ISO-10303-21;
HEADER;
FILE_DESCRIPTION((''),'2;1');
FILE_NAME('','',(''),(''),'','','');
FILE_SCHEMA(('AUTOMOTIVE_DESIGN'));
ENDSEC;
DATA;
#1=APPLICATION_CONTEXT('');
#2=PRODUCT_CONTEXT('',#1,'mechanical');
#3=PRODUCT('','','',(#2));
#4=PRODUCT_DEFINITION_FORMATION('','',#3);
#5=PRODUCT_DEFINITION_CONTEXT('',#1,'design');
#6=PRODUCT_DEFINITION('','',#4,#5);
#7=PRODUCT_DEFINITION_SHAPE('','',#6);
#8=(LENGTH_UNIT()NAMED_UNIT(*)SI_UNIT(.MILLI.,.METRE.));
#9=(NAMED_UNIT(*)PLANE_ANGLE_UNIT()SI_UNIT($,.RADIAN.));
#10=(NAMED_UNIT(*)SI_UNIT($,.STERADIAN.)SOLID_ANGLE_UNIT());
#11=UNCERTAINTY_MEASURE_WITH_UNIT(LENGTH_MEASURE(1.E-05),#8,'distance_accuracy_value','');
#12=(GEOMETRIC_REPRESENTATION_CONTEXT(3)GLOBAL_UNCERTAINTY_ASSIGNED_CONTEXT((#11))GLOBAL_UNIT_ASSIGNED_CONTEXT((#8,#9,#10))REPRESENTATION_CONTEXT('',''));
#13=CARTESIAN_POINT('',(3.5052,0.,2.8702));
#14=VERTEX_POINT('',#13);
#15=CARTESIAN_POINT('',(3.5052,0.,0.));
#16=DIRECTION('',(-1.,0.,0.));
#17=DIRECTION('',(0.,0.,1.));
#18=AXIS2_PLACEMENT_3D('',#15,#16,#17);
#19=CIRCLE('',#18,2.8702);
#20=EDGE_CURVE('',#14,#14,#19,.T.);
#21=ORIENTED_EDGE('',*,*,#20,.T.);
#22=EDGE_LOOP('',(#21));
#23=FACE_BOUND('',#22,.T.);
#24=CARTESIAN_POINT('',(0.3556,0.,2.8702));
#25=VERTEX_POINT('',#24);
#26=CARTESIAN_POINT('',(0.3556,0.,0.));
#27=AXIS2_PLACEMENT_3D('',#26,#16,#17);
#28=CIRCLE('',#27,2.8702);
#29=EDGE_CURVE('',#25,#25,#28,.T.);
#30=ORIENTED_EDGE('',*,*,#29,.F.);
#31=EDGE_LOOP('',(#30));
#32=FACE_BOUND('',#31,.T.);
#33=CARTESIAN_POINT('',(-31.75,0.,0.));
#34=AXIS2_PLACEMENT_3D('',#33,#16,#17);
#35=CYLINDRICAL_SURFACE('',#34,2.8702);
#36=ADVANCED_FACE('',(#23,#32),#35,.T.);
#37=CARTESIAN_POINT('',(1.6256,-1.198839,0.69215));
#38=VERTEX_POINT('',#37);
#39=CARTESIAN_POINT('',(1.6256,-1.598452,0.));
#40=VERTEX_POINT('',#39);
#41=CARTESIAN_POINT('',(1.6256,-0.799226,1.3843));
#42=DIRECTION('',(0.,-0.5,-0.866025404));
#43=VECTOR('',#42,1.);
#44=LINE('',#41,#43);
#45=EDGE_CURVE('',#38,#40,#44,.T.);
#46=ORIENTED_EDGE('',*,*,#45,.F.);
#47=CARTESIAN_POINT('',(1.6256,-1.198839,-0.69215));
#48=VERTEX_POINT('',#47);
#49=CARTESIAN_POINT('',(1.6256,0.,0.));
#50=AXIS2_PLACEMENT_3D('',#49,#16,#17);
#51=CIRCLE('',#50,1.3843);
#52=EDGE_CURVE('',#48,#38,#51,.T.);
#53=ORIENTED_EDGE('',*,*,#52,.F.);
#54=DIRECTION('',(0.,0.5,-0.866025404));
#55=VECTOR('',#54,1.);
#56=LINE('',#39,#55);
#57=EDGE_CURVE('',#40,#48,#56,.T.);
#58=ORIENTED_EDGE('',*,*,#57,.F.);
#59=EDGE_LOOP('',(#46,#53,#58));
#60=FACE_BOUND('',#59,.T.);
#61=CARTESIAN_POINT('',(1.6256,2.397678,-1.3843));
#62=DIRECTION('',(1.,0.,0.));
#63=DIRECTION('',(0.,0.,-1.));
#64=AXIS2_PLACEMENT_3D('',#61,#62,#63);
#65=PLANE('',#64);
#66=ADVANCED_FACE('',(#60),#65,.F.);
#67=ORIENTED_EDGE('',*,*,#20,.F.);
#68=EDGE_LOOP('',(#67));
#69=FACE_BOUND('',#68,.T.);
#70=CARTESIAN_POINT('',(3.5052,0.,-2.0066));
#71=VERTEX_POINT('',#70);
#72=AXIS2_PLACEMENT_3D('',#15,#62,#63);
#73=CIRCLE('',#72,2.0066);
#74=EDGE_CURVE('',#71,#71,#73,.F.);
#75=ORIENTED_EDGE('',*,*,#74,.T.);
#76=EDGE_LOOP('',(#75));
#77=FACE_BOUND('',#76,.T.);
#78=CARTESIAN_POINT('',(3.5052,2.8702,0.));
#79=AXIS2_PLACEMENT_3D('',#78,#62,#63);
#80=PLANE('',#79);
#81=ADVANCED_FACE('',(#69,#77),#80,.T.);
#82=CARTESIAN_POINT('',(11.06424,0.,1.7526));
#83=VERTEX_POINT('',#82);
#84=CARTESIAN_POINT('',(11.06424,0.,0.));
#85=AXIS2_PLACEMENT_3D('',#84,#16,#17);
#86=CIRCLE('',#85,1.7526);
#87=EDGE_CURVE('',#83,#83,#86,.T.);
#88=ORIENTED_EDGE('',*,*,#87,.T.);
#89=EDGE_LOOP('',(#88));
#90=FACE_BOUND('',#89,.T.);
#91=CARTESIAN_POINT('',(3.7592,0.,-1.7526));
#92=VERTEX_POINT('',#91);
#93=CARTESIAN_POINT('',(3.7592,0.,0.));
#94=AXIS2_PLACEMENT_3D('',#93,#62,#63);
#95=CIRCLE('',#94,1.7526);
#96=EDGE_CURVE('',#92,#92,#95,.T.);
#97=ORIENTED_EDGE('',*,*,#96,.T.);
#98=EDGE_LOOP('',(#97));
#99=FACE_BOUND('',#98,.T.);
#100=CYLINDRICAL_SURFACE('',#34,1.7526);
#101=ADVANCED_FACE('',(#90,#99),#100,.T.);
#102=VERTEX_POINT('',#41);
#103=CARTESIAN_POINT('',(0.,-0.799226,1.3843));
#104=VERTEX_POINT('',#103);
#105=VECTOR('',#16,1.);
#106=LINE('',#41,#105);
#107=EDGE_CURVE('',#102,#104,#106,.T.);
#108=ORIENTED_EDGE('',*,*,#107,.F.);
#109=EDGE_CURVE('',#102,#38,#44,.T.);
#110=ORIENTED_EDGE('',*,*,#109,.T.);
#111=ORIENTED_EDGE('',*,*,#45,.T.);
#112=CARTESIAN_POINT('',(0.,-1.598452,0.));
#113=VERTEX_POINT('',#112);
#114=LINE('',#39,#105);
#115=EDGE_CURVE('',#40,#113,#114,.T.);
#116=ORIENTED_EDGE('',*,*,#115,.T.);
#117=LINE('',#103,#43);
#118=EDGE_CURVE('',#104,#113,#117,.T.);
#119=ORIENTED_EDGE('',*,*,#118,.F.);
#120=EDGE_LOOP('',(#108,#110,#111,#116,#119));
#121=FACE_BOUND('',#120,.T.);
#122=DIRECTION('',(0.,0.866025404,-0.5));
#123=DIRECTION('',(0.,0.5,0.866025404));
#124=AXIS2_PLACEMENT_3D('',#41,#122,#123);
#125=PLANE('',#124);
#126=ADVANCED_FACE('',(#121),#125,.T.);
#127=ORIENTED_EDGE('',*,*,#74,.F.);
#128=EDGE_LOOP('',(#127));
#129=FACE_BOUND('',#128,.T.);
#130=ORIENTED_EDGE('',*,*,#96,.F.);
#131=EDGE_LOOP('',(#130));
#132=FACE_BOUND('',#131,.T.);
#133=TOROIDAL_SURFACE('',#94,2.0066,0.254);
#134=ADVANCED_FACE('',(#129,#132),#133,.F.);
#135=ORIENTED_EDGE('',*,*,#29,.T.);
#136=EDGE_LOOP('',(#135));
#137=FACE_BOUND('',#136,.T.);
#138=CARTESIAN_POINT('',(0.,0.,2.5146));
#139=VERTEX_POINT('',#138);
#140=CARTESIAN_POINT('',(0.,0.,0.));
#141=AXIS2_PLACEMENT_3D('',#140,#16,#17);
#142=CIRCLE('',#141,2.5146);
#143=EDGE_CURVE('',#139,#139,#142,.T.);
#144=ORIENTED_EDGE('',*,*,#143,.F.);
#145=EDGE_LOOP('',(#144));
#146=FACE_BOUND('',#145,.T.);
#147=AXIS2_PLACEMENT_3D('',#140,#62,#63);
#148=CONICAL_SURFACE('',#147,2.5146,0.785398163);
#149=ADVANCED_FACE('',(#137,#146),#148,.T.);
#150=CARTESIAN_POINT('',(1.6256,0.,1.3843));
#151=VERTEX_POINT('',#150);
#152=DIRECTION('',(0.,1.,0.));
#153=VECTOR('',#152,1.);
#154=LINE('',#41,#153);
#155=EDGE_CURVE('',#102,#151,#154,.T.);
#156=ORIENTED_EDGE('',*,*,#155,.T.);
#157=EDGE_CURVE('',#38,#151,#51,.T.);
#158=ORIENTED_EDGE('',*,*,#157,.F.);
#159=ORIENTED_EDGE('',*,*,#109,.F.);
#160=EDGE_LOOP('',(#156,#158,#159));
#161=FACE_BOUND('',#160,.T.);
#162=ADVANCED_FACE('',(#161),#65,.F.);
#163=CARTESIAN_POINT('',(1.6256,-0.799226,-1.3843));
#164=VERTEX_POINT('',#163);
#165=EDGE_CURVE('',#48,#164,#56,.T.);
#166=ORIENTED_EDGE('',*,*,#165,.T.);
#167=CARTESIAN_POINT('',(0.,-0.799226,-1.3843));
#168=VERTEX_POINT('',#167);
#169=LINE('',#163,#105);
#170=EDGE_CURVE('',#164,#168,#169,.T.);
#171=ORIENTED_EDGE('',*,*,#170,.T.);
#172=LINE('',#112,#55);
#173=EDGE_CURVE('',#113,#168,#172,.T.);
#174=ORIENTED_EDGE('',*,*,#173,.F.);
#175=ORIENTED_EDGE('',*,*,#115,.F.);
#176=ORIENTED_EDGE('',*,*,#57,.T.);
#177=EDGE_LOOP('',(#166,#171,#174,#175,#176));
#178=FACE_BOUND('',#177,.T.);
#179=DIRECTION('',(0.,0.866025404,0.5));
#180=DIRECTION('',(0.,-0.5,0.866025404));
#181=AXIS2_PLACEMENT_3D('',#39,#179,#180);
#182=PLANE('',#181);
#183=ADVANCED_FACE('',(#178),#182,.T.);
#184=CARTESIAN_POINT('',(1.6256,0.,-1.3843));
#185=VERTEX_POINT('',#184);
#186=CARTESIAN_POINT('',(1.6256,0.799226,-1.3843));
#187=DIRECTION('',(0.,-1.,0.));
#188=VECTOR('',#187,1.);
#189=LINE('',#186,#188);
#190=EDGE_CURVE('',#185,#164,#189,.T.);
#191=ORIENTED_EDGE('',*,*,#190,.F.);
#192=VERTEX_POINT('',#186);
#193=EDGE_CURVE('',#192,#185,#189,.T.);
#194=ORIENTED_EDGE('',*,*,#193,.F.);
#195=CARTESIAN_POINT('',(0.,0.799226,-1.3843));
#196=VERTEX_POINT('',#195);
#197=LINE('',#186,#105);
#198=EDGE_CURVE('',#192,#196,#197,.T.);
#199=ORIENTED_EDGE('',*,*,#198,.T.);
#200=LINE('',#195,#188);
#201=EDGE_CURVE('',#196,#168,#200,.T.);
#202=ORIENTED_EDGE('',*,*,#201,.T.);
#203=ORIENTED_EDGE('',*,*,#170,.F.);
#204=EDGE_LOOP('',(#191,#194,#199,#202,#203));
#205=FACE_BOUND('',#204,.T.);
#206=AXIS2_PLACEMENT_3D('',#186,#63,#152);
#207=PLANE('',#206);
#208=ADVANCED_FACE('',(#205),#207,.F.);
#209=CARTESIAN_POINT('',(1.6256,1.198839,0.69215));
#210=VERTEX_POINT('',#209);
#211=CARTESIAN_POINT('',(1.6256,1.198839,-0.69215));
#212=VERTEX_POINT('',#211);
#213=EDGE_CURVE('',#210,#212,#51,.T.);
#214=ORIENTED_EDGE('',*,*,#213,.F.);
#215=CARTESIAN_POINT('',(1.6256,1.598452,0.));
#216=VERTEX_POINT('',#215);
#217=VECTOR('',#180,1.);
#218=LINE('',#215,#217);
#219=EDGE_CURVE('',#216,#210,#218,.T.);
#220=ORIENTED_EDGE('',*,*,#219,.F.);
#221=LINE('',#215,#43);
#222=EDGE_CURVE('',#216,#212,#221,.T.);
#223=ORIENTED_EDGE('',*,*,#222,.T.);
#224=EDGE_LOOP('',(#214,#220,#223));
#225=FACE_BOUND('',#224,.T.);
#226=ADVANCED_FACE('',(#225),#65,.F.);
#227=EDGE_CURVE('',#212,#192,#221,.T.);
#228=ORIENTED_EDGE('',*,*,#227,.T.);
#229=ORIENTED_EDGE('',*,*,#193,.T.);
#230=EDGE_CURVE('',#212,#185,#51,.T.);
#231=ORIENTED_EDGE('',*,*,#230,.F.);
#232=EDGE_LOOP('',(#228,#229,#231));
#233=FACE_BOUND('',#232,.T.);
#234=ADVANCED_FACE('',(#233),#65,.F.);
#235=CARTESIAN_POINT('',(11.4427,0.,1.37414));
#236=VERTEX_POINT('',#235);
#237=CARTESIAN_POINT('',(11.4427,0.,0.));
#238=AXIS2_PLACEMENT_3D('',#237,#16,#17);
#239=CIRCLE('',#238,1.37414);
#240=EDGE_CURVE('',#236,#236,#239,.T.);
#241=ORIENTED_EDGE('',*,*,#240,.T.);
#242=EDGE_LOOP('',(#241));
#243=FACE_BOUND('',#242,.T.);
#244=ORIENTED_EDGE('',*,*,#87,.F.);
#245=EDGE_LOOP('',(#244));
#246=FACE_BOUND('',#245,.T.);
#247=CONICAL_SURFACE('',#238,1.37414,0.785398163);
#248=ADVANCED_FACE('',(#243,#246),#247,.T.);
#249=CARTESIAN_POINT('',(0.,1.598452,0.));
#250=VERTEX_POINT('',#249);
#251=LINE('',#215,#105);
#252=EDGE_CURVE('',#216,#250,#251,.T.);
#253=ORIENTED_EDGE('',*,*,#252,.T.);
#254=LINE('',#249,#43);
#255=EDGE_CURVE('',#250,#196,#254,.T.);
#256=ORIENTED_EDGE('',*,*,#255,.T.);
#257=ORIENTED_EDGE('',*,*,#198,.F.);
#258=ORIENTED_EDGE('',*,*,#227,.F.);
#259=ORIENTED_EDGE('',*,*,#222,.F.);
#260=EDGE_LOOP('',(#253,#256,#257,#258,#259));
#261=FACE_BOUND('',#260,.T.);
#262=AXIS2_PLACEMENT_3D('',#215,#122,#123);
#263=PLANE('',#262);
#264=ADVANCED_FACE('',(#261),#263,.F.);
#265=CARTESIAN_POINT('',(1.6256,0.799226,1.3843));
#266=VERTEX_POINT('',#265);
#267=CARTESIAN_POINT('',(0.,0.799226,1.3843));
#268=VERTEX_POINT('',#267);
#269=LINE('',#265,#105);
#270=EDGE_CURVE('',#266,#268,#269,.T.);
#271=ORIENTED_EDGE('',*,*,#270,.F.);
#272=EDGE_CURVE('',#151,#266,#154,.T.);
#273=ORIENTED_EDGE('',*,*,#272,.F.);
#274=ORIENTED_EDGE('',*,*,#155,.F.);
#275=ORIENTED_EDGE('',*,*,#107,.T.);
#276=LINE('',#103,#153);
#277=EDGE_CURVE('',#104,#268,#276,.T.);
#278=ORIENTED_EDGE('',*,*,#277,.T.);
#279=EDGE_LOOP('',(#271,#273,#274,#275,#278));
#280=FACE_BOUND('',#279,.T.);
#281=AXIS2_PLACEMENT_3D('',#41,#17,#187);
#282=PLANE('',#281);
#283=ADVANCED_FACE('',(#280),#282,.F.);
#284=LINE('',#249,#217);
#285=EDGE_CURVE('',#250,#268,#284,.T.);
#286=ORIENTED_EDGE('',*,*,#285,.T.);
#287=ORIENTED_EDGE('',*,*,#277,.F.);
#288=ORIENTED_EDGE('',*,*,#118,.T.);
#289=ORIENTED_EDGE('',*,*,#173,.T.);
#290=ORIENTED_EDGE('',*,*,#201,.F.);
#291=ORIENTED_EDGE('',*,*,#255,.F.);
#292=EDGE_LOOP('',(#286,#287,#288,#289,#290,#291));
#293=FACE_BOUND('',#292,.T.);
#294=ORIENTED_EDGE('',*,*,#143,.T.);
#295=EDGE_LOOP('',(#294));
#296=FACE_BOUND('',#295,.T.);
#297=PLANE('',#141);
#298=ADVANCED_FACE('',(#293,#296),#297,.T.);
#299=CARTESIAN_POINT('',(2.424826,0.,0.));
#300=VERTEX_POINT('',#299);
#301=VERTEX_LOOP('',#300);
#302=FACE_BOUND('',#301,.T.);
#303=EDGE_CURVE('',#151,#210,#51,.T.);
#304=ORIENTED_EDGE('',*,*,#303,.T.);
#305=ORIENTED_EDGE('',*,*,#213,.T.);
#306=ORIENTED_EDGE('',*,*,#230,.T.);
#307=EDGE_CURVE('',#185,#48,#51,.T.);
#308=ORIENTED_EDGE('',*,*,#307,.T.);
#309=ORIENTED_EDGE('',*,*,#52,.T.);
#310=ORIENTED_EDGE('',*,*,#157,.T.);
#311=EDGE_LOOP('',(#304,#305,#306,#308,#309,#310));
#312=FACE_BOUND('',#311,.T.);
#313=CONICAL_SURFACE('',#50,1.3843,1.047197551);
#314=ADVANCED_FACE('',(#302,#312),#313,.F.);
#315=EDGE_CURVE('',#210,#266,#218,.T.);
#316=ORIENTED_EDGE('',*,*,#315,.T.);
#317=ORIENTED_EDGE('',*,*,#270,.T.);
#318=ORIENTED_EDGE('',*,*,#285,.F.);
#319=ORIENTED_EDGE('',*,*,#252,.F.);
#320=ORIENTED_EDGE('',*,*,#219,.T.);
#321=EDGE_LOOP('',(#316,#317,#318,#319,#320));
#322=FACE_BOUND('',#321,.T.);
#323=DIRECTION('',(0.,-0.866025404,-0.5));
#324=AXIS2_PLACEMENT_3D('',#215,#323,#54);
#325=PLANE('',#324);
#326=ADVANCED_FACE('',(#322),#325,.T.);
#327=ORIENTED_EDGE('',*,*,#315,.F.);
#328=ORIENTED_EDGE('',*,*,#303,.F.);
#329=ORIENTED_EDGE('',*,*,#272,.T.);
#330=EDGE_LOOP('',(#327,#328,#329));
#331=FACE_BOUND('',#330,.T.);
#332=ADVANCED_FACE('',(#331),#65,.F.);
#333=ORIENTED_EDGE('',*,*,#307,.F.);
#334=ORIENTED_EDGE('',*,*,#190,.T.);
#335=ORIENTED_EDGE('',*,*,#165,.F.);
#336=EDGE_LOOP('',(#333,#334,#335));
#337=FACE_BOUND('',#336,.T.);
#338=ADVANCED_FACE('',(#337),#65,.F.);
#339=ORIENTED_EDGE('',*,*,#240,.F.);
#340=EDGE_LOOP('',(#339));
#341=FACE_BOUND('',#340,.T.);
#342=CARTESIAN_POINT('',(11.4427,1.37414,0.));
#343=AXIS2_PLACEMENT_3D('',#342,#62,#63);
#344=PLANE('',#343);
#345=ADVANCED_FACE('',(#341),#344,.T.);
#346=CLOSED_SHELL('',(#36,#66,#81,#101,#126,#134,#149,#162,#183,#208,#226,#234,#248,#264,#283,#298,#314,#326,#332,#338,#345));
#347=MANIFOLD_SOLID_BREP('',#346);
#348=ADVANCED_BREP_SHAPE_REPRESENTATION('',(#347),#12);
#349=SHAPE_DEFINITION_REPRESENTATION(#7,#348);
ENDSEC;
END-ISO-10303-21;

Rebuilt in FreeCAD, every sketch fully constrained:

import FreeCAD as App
import Part
import Sketcher
from FreeCAD import Vector
Q = App.Units.Quantity


def edges_at(feature, points):
    """Names of the edges that pass closest to the given points."""
    edges = feature.Shape.Edges
    near = lambda p: min(range(len(edges)), key=lambda i: edges[i].distToShape(Part.Vertex(*p))[0])
    return sorted({f"Edge{near(p) + 1}" for p in points})


def add_polygon(sketch, points):
    """Adds a closed chain of lines whose ends are joined by coincident constraints."""
    first, n = sketch.GeometryCount, len(points)
    for a, b in zip(points, points[1:] + points[:1]):
        sketch.addGeometry(Part.LineSegment(App.Vector(*a, 0), App.Vector(*b, 0)), False)
    for i in range(n):
        sketch.addConstraint(Sketcher.Constraint("Coincident", first + i, 2, first + (i + 1) % n, 1))

doc = App.newDocument("Part")
body = doc.addObject("PartDesign::Body", "Body")

# Sketch on XY plane
sketch1 = doc.addObject("Sketcher::SketchObject", "Sketch")
body.addObject(sketch1)
sketch1.AttachmentSupport = (doc.XY_Plane, [""])
sketch1.MapMode = "FlatFace"
add_polygon(sketch1, [(0, 2.5), (0, 0), (11.4, 0), (11.4, 1.4), (11.1, 1.8), (3.5, 1.8), (3.5, 2.9), (0.4, 2.9)])  # lines 0-7
sketch1.addConstraint([
    Sketcher.Constraint("Vertical", 0),
    Sketcher.Constraint("Horizontal", 1),
    Sketcher.Constraint("Vertical", 2),
    Sketcher.Constraint("Horizontal", 4),
    Sketcher.Constraint("Vertical", 5),
    Sketcher.Constraint("Horizontal", 6),
    Sketcher.Constraint("Coincident", 0, 2, -1, 1),
    Sketcher.Constraint("Perpendicular", 3, 7),
    Sketcher.Constraint("Angle", 3, Q("135 deg")),
    Sketcher.Constraint("DistanceX", 6, 2, 6, 1, Q("0.124 in")),
    Sketcher.Constraint("DistanceY", 0, 2, 0, 1, Q("0.099 in")),
    Sketcher.Constraint("DistanceY", 5, 1, 5, 2, Q("0.044 in")),
    Sketcher.Constraint("DistanceY", 4, 2, 7, 2, Q("0.03 in")),
    Sketcher.Constraint("DistanceX", 1, 1, 1, 2, Q("0.4505 in")),
    Sketcher.Constraint("DistanceX", 4, 2, 4, 1, Q("0.2976 in")),
])
revolution = doc.addObject("PartDesign::Revolution", "Revolution")
body.addObject(revolution)
revolution.Profile = sketch1
revolution.ReferenceAxis = (sketch1, ["H_Axis"])
revolution.Angle = 360
doc.recompute()

fillet = doc.addObject("PartDesign::Fillet", "Fillet")
body.addObject(fillet)
fillet.Base = (revolution, edges_at(revolution, [(3.505, -1.753, 0)]))
fillet.Radius = Q("0.01 in")

# Sketch on XY plane
sketch2 = doc.addObject("Sketcher::SketchObject", "Sketch001")
body.addObject(sketch2)
sketch2.AttachmentSupport = (doc.XY_Plane, [""])
sketch2.MapMode = "FlatFace"
add_polygon(sketch2, [(1.6, 1.4), (0, 1.4), (0, 0), (2.4, 0)])  # lines 0-3
sketch2.addConstraint([
    Sketcher.Constraint("Horizontal", 0),
    Sketcher.Constraint("Vertical", 1),
    Sketcher.Constraint("Horizontal", 2),
    Sketcher.Constraint("Coincident", 1, 2, -1, 1),
    Sketcher.Constraint("Angle", 3, Q("120 deg")),
    Sketcher.Constraint("DistanceX", 0, 2, 0, 1, Q("0.064 in")),
    Sketcher.Constraint("DistanceY", 1, 2, 1, 1, Q("0.0545 in")),
])
groove = doc.addObject("PartDesign::Groove", "Groove")
body.addObject(groove)
groove.Profile = sketch2
groove.ReferenceAxis = (sketch2, ["H_Axis"])
groove.Angle = 360

# Sketch on YZ plane
sketch3 = doc.addObject("Sketcher::SketchObject", "Sketch002")
body.addObject(sketch3)
sketch3.AttachmentSupport = (doc.YZ_Plane, [""])
sketch3.MapMode = "FlatFace"
add_polygon(sketch3, [(1.6, 0), (0.8, -1.4), (-0.8, -1.4), (-1.6, 0), (-0.8, 1.4), (0.8, 1.4)])  # lines 0-5
sketch3.addConstraint([
    Sketcher.Constraint("Horizontal", 1),
    Sketcher.Constraint("Horizontal", 4),
    Sketcher.Constraint("Symmetric", 0, 2, 3, 2, -1, 1),
    Sketcher.Constraint("Symmetric", 2, 2, 5, 2, -1, 1),
    Sketcher.Constraint("PointOnObject", 2, 2, -1),
    Sketcher.Constraint("Parallel", 2, 5),
    Sketcher.Constraint("Vertical", 1, 2, 3, 2),
    Sketcher.Constraint("Angle", 0, Q("-120 deg")),
    Sketcher.Constraint("DistanceY", 1, 2, 3, 2, Q("0.109 in")),
    Sketcher.Constraint("DistanceX", 1, 2, 1, 1, 1.598452),
])
pocket1 = doc.addObject("PartDesign::Pocket", "Pocket")
body.addObject(pocket1)
pocket1.Profile = sketch3
pocket1.Length = Q("0.064 in")
pocket1.Reversed = True

doc.recompute()
